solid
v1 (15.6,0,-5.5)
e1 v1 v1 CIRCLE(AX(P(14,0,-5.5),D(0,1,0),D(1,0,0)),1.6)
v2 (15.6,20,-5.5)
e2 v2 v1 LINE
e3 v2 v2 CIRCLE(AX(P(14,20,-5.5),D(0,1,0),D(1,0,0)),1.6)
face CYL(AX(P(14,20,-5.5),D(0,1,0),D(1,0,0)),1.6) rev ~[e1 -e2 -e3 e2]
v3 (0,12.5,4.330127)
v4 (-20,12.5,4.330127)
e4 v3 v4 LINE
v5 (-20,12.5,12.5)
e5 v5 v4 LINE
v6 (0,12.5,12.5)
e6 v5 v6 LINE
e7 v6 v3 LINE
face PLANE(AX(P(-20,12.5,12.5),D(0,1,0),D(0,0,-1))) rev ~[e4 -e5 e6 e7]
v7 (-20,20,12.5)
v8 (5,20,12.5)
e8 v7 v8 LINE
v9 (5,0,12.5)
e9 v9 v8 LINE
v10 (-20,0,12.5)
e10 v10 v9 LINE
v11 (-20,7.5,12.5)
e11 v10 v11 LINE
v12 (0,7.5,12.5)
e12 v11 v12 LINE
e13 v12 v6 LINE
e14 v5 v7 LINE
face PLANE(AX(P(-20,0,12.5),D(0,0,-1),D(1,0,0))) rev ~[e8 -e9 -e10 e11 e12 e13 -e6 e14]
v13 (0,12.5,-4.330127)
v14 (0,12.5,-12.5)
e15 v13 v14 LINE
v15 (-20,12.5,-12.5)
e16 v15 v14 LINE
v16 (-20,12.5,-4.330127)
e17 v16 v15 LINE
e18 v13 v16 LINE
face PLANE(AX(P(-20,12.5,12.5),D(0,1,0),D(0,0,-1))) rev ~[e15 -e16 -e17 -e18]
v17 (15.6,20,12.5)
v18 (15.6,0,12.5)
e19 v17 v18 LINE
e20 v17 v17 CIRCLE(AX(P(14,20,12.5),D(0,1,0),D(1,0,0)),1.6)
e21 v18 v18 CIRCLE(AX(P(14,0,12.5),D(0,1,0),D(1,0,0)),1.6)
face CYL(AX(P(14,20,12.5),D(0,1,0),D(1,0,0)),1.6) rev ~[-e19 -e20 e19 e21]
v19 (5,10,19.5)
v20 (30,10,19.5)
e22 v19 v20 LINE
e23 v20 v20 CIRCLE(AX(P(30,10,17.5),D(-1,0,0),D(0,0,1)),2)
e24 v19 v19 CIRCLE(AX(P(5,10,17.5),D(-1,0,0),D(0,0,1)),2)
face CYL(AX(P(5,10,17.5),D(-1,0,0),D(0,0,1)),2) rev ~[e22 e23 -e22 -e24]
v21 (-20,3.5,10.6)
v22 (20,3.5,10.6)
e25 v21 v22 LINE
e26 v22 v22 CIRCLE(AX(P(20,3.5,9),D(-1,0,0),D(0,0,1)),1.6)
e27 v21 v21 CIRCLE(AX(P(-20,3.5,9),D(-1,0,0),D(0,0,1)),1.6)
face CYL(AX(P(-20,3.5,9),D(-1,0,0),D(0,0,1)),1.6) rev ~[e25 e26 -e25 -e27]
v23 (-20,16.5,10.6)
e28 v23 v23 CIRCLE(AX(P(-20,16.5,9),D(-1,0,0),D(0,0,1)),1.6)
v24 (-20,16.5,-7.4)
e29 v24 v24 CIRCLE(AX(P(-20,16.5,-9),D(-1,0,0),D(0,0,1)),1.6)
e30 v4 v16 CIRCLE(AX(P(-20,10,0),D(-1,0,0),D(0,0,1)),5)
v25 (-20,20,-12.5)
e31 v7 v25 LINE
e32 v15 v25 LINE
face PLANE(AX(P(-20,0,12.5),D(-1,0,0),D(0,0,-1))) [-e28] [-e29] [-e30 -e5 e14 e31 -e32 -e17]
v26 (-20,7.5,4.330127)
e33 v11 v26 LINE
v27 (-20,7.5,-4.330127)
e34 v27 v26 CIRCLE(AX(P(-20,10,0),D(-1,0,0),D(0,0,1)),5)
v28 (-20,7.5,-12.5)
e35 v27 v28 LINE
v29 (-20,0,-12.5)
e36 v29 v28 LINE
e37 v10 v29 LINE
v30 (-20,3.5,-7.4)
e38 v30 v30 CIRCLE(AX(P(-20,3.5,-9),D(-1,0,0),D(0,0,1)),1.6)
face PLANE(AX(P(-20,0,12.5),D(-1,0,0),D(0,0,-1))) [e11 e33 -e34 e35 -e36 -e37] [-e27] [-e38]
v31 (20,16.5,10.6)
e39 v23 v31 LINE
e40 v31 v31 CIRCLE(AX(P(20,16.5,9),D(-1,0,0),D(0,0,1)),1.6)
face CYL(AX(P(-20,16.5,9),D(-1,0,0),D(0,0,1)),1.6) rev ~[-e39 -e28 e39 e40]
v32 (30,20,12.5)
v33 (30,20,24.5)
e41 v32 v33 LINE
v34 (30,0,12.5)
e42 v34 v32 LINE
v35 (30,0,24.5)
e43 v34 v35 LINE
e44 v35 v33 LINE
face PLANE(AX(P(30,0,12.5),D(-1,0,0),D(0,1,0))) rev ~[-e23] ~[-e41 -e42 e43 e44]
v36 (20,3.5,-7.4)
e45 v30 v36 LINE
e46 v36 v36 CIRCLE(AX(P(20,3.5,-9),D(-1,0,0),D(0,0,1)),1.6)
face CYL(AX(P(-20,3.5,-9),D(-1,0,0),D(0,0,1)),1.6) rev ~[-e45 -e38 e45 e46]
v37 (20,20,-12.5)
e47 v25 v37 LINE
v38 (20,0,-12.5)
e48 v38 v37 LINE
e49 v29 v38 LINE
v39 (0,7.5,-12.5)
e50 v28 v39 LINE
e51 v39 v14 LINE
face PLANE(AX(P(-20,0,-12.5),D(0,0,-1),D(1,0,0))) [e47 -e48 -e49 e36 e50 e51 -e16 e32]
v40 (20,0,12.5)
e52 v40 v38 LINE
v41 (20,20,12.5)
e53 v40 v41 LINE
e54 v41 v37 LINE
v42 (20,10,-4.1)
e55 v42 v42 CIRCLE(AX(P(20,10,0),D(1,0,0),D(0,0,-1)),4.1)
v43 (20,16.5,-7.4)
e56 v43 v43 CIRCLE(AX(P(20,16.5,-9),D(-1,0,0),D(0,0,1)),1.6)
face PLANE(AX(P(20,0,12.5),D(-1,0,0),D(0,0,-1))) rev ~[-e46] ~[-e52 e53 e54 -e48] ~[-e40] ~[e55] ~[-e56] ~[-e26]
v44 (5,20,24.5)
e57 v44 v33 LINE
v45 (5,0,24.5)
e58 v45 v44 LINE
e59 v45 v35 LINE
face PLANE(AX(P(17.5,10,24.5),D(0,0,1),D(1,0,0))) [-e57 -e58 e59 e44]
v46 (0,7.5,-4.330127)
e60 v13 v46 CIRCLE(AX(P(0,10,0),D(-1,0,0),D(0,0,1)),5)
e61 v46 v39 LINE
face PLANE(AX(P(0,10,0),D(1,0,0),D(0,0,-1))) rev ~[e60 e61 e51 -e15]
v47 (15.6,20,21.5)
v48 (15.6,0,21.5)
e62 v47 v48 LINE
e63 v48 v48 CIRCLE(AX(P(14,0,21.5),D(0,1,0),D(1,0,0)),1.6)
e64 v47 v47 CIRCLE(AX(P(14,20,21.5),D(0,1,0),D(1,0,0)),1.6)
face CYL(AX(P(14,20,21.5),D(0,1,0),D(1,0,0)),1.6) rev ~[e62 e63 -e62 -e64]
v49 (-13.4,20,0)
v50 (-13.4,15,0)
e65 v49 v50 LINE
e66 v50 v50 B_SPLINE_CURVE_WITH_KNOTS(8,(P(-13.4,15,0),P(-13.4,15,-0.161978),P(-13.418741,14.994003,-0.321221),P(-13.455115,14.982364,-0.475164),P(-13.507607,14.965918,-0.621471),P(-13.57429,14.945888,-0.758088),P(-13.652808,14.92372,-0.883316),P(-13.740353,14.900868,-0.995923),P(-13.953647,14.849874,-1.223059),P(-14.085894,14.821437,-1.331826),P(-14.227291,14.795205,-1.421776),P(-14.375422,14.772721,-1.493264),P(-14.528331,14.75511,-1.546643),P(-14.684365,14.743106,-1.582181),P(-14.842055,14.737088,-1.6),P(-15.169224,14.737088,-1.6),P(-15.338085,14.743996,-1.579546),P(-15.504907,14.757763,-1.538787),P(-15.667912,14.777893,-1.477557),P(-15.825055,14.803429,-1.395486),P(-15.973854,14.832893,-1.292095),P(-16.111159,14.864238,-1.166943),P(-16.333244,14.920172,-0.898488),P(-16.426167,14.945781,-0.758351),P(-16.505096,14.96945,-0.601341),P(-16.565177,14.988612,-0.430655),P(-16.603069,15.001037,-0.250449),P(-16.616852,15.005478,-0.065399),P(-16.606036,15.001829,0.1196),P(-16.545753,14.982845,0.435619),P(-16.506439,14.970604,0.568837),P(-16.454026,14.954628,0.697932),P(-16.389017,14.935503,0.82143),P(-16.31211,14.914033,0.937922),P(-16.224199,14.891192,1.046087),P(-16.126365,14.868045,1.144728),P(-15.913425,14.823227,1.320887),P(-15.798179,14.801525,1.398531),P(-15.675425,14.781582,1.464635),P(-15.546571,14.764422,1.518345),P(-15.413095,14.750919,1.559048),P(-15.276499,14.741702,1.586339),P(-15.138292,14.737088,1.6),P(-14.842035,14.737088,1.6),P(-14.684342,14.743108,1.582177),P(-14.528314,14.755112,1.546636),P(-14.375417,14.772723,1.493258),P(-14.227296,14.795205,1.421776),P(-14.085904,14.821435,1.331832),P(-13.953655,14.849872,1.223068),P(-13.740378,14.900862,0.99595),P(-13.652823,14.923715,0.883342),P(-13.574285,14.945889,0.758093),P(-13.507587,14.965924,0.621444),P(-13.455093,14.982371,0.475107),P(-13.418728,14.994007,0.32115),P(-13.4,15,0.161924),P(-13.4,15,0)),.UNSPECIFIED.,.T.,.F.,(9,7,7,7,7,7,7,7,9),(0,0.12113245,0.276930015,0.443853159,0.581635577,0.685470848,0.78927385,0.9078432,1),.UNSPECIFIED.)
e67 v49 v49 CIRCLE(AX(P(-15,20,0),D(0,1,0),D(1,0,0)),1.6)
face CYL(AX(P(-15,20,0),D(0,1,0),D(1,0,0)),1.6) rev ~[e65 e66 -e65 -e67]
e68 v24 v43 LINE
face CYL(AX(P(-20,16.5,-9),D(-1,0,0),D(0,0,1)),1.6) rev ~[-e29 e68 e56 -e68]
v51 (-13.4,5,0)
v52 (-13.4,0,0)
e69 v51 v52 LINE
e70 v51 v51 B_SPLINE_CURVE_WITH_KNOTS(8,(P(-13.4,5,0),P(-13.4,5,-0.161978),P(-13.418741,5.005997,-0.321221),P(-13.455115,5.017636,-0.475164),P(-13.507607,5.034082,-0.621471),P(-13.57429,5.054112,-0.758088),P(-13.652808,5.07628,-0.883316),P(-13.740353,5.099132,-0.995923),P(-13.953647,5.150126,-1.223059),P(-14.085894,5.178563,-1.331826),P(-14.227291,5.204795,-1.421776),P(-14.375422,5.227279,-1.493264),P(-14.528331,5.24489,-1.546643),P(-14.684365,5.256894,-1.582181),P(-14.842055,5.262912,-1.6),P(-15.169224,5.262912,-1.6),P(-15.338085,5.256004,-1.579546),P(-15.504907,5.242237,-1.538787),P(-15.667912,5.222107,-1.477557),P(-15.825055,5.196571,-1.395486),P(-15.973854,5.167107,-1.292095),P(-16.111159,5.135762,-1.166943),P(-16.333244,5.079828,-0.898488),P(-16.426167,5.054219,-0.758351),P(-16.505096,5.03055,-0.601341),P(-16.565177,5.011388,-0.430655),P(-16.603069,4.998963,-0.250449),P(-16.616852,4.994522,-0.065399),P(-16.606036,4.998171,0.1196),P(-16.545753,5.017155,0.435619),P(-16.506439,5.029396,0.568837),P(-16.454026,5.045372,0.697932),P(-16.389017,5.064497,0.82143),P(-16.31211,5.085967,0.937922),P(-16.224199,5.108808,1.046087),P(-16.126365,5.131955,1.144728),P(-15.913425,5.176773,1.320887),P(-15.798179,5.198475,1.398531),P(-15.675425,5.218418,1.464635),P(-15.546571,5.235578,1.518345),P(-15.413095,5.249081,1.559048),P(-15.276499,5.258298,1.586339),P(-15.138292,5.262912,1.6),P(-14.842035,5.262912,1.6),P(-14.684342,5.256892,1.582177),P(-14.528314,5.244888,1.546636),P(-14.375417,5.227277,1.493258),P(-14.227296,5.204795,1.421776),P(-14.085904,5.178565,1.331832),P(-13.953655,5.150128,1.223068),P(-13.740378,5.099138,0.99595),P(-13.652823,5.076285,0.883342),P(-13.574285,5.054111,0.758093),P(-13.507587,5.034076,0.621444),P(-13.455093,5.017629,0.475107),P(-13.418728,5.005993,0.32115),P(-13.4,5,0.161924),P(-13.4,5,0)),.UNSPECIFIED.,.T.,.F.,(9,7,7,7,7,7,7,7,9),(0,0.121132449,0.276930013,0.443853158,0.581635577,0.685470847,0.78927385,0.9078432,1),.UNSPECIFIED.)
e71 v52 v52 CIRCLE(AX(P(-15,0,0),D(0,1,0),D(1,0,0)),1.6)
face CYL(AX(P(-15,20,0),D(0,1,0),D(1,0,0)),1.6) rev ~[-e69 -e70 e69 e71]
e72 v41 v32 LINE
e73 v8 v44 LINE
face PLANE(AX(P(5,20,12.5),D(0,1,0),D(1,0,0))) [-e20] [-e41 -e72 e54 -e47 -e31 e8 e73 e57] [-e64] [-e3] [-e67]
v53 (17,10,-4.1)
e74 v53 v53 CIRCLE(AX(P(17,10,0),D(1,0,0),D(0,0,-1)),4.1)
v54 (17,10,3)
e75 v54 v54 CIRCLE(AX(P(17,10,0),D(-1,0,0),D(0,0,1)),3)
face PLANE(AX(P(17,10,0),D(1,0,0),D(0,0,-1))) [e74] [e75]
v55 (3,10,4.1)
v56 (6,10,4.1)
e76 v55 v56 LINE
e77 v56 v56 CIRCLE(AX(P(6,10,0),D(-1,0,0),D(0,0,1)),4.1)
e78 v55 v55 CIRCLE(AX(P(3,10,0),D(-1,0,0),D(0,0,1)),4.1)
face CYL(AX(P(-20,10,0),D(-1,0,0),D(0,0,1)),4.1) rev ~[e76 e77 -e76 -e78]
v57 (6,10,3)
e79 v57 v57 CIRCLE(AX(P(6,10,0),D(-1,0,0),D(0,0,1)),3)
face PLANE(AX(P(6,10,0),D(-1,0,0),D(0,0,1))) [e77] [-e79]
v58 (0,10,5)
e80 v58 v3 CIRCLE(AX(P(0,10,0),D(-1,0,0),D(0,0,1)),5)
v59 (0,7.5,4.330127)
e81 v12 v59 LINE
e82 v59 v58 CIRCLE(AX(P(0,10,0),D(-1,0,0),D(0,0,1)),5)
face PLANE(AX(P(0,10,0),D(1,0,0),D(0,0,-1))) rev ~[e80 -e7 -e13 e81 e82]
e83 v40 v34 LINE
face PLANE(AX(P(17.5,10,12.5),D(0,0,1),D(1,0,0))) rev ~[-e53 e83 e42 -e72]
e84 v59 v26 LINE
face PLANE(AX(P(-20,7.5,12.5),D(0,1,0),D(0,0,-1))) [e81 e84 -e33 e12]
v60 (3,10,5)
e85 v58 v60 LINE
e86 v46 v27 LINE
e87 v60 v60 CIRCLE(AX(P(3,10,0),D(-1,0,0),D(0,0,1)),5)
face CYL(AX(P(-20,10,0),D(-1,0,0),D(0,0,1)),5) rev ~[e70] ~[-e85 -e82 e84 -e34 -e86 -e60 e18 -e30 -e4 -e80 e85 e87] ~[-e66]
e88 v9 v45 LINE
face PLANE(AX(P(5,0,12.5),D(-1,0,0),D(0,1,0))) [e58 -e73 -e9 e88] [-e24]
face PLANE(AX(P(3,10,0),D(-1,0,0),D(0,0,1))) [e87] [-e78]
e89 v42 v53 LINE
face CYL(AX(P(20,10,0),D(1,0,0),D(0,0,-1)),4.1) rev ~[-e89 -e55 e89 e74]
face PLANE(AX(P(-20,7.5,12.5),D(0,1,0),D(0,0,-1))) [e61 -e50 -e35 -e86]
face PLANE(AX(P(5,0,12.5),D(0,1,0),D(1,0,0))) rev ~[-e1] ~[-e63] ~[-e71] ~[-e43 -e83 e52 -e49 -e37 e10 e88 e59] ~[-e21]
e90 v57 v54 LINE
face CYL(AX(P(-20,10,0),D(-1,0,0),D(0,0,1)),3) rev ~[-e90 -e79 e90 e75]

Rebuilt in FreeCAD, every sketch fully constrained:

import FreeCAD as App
import Part
import Sketcher

V = App.Vector

doc = App.newDocument("Part")
body = doc.addObject("PartDesign::Body", "Body")

sketch1 = body.newObject("Sketcher::SketchObject", "Sketch")
sketch1.AttachmentSupport = (doc.getObject("XZ_Plane"), [""])
sketch1.MapMode = "FlatFace"
sketch1.addGeometry([
    Part.LineSegment(V(-20, -12, 0), V(-20, 12, 0)),
    Part.LineSegment(V(-20, 12, 0), V(20, 12, 0)),
    Part.LineSegment(V(20, 12, 0), V(20, -12, 0)),
    Part.LineSegment(V(20, -12, 0), V(-20, -12, 0)),
], False)
sketch1.addConstraint([
    Sketcher.Constraint("Coincident", 0, 2, 1, 1),
    Sketcher.Constraint("Coincident", 1, 2, 2, 1),
    Sketcher.Constraint("Coincident", 2, 2, 3, 1),
    Sketcher.Constraint("Coincident", 3, 2, 0, 1),
    Sketcher.Constraint("Vertical", 0),
    Sketcher.Constraint("Horizontal", 1),
    Sketcher.Constraint("Vertical", 2),
    Sketcher.Constraint("Horizontal", 3),
    Sketcher.Constraint("Symmetric", 0, 2, 2, 2, -1, 1),
    Sketcher.Constraint("DistanceX", 1, 1, 1, 2, 40.0),
    Sketcher.Constraint("DistanceY", 0, 1, 0, 2, 25.0),
])
pad1 = body.newObject("PartDesign::Pad", "Pad")
pad1.Profile = sketch1
pad1.Length = 20
pad1.Reversed = True

sketch2 = body.newObject("Sketcher::SketchObject", "Sketch001")
sketch2.AttachmentSupport = (doc.getObject("YZ_Plane"), [""])
sketch2.MapMode = "FlatFace"
sketch2.AttachmentOffset = App.Placement(V(0, 0, -20), App.Rotation())
sketch2.addGeometry(Part.Circle(V(10, 0, 0), V(0, 0, 1), 3), False)
sketch2.addConstraint([
    Sketcher.Constraint("PointOnObject", 0, 3, -1),
    Sketcher.Constraint("Diameter", 0, 6.0),
    Sketcher.Constraint("DistanceX", -1, 1, 0, 3, 10.0),
])
pocket1 = body.newObject("PartDesign::Pocket", "Pocket")
pocket1.Profile = sketch2
pocket1.Type = "ThroughAll"
pocket1.Reversed = True

sketch3 = body.newObject("Sketcher::SketchObject", "Sketch002")
sketch3.AttachmentSupport = (doc.getObject("YZ_Plane"), [""])
sketch3.MapMode = "FlatFace"
sketch3.AttachmentOffset = App.Placement(V(0, 0, -20), App.Rotation())
sketch3.addGeometry(Part.Circle(V(10, 0, 0), V(0, 0, 1), 4.1), False)
sketch3.addConstraint([
    Sketcher.Constraint("PointOnObject", 0, 3, -1),
    Sketcher.Constraint("Diameter", 0, 8.2),
    Sketcher.Constraint("DistanceX", -1, 1, 0, 3, 10.0),
])
pocket2 = body.newObject("PartDesign::Pocket", "Pocket001")
pocket2.Profile = sketch3
pocket2.Length = 26
pocket2.Reversed = True

sketch4 = body.newObject("Sketcher::SketchObject", "Sketch003")
sketch4.AttachmentSupport = (doc.getObject("YZ_Plane"), [""])
sketch4.MapMode = "FlatFace"
sketch4.AttachmentOffset = App.Placement(V(0, 0, -20), App.Rotation())
sketch4.addGeometry([
    Part.LineSegment(V(12, 12, 0), V(8, 12, 0)),
    Part.LineSegment(V(8, 12, 0), V(8, -12, 0)),
    Part.LineSegment(V(8, -12, 0), V(12, -12, 0)),
    Part.LineSegment(V(12, -12, 0), V(12, 12, 0)),
], False)
sketch4.addConstraint([
    Sketcher.Constraint("Coincident", 0, 2, 1, 1),
    Sketcher.Constraint("Coincident", 1, 2, 2, 1),
    Sketcher.Constraint("Coincident", 2, 2, 3, 1),
    Sketcher.Constraint("Coincident", 3, 2, 0, 1),
    Sketcher.Constraint("Horizontal", 0),
    Sketcher.Constraint("Vertical", 1),
    Sketcher.Constraint("Horizontal", 2),
    Sketcher.Constraint("Vertical", 3),
    Sketcher.Constraint("DistanceX", 0, 2, 0, 1, 5.0),
    Sketcher.Constraint("DistanceY", 1, 2, 1, 1, 25.0),
    Sketcher.Constraint("DistanceX", -1, 1, 0, 2, 7.5),
    Sketcher.Constraint("DistanceY", -1, 1, 0, 2, 12.5),
])
pocket3 = body.newObject("PartDesign::Pocket", "Pocket002")
pocket3.Profile = sketch4
pocket3.Length = 20
pocket3.Reversed = True

sketch5 = body.newObject("Sketcher::SketchObject", "Sketch004")
sketch5.AttachmentSupport = (doc.getObject("YZ_Plane"), [""])
sketch5.MapMode = "FlatFace"
sketch5.AttachmentOffset = App.Placement(V(0, 0, 20), App.Rotation())
sketch5.addGeometry(Part.Circle(V(10, 0, 0), V(0, 0, 1), 4.1), False)
sketch5.addConstraint([
    Sketcher.Constraint("PointOnObject", 0, 3, -1),
    Sketcher.Constraint("Diameter", 0, 8.2),
    Sketcher.Constraint("DistanceX", -1, 1, 0, 3, 10.0),
])
pocket4 = body.newObject("PartDesign::Pocket", "Pocket003")
pocket4.Profile = sketch5
pocket4.Length = 3

sketch6 = body.newObject("Sketcher::SketchObject", "Sketch005")
sketch6.AttachmentSupport = (doc.getObject("XZ_Plane"), [""])
sketch6.MapMode = "FlatFace"
sketch6.AttachmentOffset = App.Placement(V(0, 0, -20), App.Rotation())
sketch6.addGeometry(Part.Circle(V(-15, 0, 0), V(0, 0, 1), 1.6), False)
sketch6.addConstraint([
    Sketcher.Constraint("PointOnObject", 0, 3, -1),
    Sketcher.Constraint("Diameter", 0, 3.2),
    Sketcher.Constraint("DistanceX", 0, 3, -1, 1, 15.0),
])
pocket5 = body.newObject("PartDesign::Pocket", "Pocket004")
pocket5.Profile = sketch6
pocket5.Type = "ThroughAll"
pocket5.Reversed = True

sketch7 = body.newObject("Sketcher::SketchObject", "Sketch006")
sketch7.AttachmentSupport = (doc.getObject("YZ_Plane"), [""])
sketch7.MapMode = "FlatFace"
sketch7.AttachmentOffset = App.Placement(V(0, 0, -20), App.Rotation())
sketch7.addGeometry([
    Part.Circle(V(16.5, -9, 0), V(0, 0, 1), 1.6),
    Part.Circle(V(16.5, 9, 0), V(0, 0, 1), 1.6),
    Part.Circle(V(3.5, -9, 0), V(0, 0, 1), 1.6),
    Part.Circle(V(3.5, 9, 0), V(0, 0, 1), 1.6),
], False)
sketch7.addConstraint([
    Sketcher.Constraint("Equal", 0, 1),
    Sketcher.Constraint("Equal", 1, 2),
    Sketcher.Constraint("Equal", 2, 3),
    Sketcher.Constraint("Symmetric", 0, 3, 1, 3, -1),
    Sketcher.Constraint("Symmetric", 2, 3, 3, 3, -1),
    Sketcher.Constraint("Horizontal", 0, 3, 2, 3),
    Sketcher.Constraint("Diameter", 0, 3.2),
    Sketcher.Constraint("DistanceY", 0, 3, -1, 1, 9.0),
    Sketcher.Constraint("DistanceX", 2, 3, 0, 3, 13.0),
    Sketcher.Constraint("DistanceX", -1, 1, 0, 3, 16.5),
])
pocket6 = body.newObject("PartDesign::Pocket", "Pocket005")
pocket6.Profile = sketch7
pocket6.Type = "ThroughAll"
pocket6.Reversed = True

sketch8 = body.newObject("Sketcher::SketchObject", "Sketch007")
sketch8.AttachmentSupport = (doc.getObject("XY_Plane"), [""])
sketch8.MapMode = "FlatFace"
sketch8.AttachmentOffset = App.Placement(V(0, 0, 12.5), App.Rotation())
sketch8.addGeometry([
    Part.LineSegment(V(5, 20, 0), V(5, 0, 0)),
    Part.LineSegment(V(5, 0, 0), V(30, 0, 0)),
    Part.LineSegment(V(30, 0, 0), V(30, 20, 0)),
    Part.LineSegment(V(30, 20, 0), V(5, 20, 0)),
], False)
sketch8.addConstraint([
    Sketcher.Constraint("Coincident", 0, 2, 1, 1),
    Sketcher.Constraint("Coincident", 1, 2, 2, 1),
    Sketcher.Constraint("Coincident", 2, 2, 3, 1),
    Sketcher.Constraint("Coincident", 3, 2, 0, 1),
    Sketcher.Constraint("Vertical", 0),
    Sketcher.Constraint("Horizontal", 1),
    Sketcher.Constraint("Vertical", 2),
    Sketcher.Constraint("Horizontal", 3),
    Sketcher.Constraint("PointOnObject", 0, 2, -1),
    Sketcher.Constraint("DistanceX", 1, 1, 1, 2, 25.0),
    Sketcher.Constraint("DistanceY", 0, 2, 0, 1, 20.0),
    Sketcher.Constraint("DistanceX", -1, 1, 0, 2, 5.0),
])
pad2 = body.newObject("PartDesign::Pad", "Pad001")
pad2.Profile = sketch8
pad2.Length = 12

sketch9 = body.newObject("Sketcher::SketchObject", "Sketch008")
sketch9.AttachmentSupport = (doc.getObject("XZ_Plane"), [""])
sketch9.MapMode = "FlatFace"
sketch9.AttachmentOffset = App.Placement(V(0, 0, -20), App.Rotation())
sketch9.addGeometry([
    Part.Circle(V(14, 21.5, 0), V(0, 0, 1), 1.6),
    Part.Circle(V(14, -5.5, 0), V(0, 0, 1), 1.6),
    Part.Circle(V(14, 12.5, 0), V(0, 0, 1), 1.6),
], False)
sketch9.addConstraint([
    Sketcher.Constraint("Equal", 0, 1),
    Sketcher.Constraint("Equal", 1, 2),
    Sketcher.Constraint("Vertical", 0, 3, 1, 3),
    Sketcher.Constraint("Vertical", 1, 3, 2, 3),
    Sketcher.Constraint("Diameter", 0, 3.2),
    Sketcher.Constraint("DistanceX", -1, 1, 0, 3, 14.0),
    Sketcher.Constraint("DistanceY", 1, 3, 0, 3, 27.0),
    Sketcher.Constraint("DistanceY", 2, 3, 0, 3, 9.0),
    Sketcher.Constraint("DistanceY", -1, 1, 0, 3, 21.5),
])
pocket7 = body.newObject("PartDesign::Pocket", "Pocket006")
pocket7.Profile = sketch9
pocket7.Type = "ThroughAll"
pocket7.Reversed = True

sketch10 = body.newObject("Sketcher::SketchObject", "Sketch009")
sketch10.AttachmentSupport = (doc.getObject("YZ_Plane"), [""])
sketch10.MapMode = "FlatFace"
sketch10.AttachmentOffset = App.Placement(V(0, 0, 5), App.Rotation())
sketch10.addGeometry(Part.Circle(V(10, 17.5, 0), V(0, 0, 1), 2), False)
sketch10.addConstraint([
    Sketcher.Constraint("Diameter", 0, 4.0),
    Sketcher.Constraint("DistanceX", -1, 1, 0, 3, 10.0),
    Sketcher.Constraint("DistanceY", -1, 1, 0, 3, 17.5),
])
pocket8 = body.newObject("PartDesign::Pocket", "Pocket007")
pocket8.Profile = sketch10
pocket8.Type = "ThroughAll"
pocket8.Reversed = True

sketch11 = body.newObject("Sketcher::SketchObject", "Sketch010")
sketch11.AttachmentSupport = (doc.getObject("YZ_Plane"), [""])
sketch11.MapMode = "FlatFace"
sketch11.AttachmentOffset = App.Placement(V(0, 0, -20), App.Rotation())
sketch11.addGeometry(Part.Circle(V(10, 0, 0), V(0, 0, 1), 5), False)
sketch11.addConstraint([
    Sketcher.Constraint("PointOnObject", 0, 3, -1),
    Sketcher.Constraint("Diameter", 0, 10.0),
    Sketcher.Constraint("DistanceX", -1, 1, 0, 3, 10.0),
])
pocket9 = body.newObject("PartDesign::Pocket", "Pocket008")
pocket9.Profile = sketch11
pocket9.Length = 23
pocket9.Reversed = True

doc.recompute()
